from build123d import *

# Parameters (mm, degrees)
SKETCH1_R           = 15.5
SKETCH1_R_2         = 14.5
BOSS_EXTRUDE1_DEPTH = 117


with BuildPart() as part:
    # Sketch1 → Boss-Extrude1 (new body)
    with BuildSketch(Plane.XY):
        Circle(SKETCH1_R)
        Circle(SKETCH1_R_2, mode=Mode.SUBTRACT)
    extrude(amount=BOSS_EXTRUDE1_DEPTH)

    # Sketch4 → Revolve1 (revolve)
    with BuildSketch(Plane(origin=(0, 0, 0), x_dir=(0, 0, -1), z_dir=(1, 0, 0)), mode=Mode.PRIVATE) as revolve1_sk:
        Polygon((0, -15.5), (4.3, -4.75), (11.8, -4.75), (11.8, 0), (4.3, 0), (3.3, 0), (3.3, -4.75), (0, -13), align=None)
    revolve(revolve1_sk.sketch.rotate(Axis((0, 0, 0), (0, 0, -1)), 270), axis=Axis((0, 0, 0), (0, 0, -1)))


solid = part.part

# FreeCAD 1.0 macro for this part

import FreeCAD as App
import Part
import Sketcher
from FreeCAD import Vector

doc = App.newDocument("Part")
body = doc.addObject("PartDesign::Body", "Body")

# Sketch on XY plane
sketch1 = body.newObject("Sketcher::SketchObject", "Sketch")
sketch1.AttachmentSupport = (doc.getObject("XY_Plane"), [""])
sketch1.MapMode = "FlatFace"
sketch1.addGeometry([
    Part.Circle(Vector(0, 0, 0), Vector(0, 0, 1), 16),
    Part.Circle(Vector(0, 0, 0), Vector(0, 0, 1), 14),
], False)
sketch1.addConstraint([
    Sketcher.Constraint("Coincident", 0, 3, -1, 1),
    Sketcher.Constraint("Coincident", 1, 3, -1, 1),
    Sketcher.Constraint("Diameter", 0, 31.0),
    Sketcher.Constraint("Diameter", 1, 29.0),
])
pad1 = body.newObject("PartDesign::Pad", "Pad")
pad1.Profile = sketch1
pad1.Length = 117

# Sketch on YZ plane
sketch2 = body.newObject("Sketcher::SketchObject", "Sketch001")
sketch2.AttachmentSupport = (doc.getObject("YZ_Plane"), [""])
sketch2.MapMode = "FlatFace"
sketch2.addGeometry([
    Part.LineSegment(Vector(-15.5, 0, 0), Vector(-4.8, -4.3, 0)),  # 0
    Part.LineSegment(Vector(-4.8, -4.3, 0), Vector(-4.8, -11.8, 0)),  # 1
    Part.LineSegment(Vector(-4.8, -11.8, 0), Vector(0, -11.8, 0)),  # 2
    Part.LineSegment(Vector(0, -11.8, 0), Vector(0, -3.3, 0)),  # 3
    Part.LineSegment(Vector(0, -3.3, 0), Vector(-4.8, -3.3, 0)),  # 4
    Part.LineSegment(Vector(-4.8, -3.3, 0), Vector(-13, 0, 0)),  # 5
    Part.LineSegment(Vector(-13, 0, 0), Vector(-15.5, 0, 0)),  # 6
], False)
sketch2.addConstraint([
    Sketcher.Constraint("Coincident", 0, 2, 1, 1),
    Sketcher.Constraint("Coincident", 1, 2, 2, 1),
    Sketcher.Constraint("Coincident", 2, 2, 3, 1),
    Sketcher.Constraint("Coincident", 3, 2, 4, 1),
    Sketcher.Constraint("Coincident", 4, 2, 5, 1),
    Sketcher.Constraint("Coincident", 5, 2, 6, 1),
    Sketcher.Constraint("Coincident", 6, 2, 0, 1),
    Sketcher.Constraint("Vertical", 1),
    Sketcher.Constraint("Horizontal", 2),
    Sketcher.Constraint("Vertical", 3),
    Sketcher.Constraint("Horizontal", 4),
    Sketcher.Constraint("Horizontal", 6),
    Sketcher.Constraint("PointOnObject", 2, 2, -2),
    Sketcher.Constraint("PointOnObject", 5, 2, -1),
    Sketcher.Constraint("Parallel", 0, 5),
    Sketcher.Constraint("Vertical", 1, 2, 4, 2),
    Sketcher.Constraint("DistanceX", 6, 2, 6, 1, 2.5),
    Sketcher.Constraint("DistanceY", 1, 2, 1, 1, 7.5),
    Sketcher.Constraint("DistanceY", 3, 1, 3, 2, 8.5),
    Sketcher.Constraint("DistanceX", 5, 2, -1, 1, 13.0),
    Sketcher.Constraint("DistanceX", 2, 1, 2, 2, 4.75),
])
revolution = body.newObject("PartDesign::Revolution", "Revolution")
revolution.Profile = sketch2
revolution.ReferenceAxis = (sketch2, ["V_Axis"])
revolution.Angle = 360

doc.recompute()
